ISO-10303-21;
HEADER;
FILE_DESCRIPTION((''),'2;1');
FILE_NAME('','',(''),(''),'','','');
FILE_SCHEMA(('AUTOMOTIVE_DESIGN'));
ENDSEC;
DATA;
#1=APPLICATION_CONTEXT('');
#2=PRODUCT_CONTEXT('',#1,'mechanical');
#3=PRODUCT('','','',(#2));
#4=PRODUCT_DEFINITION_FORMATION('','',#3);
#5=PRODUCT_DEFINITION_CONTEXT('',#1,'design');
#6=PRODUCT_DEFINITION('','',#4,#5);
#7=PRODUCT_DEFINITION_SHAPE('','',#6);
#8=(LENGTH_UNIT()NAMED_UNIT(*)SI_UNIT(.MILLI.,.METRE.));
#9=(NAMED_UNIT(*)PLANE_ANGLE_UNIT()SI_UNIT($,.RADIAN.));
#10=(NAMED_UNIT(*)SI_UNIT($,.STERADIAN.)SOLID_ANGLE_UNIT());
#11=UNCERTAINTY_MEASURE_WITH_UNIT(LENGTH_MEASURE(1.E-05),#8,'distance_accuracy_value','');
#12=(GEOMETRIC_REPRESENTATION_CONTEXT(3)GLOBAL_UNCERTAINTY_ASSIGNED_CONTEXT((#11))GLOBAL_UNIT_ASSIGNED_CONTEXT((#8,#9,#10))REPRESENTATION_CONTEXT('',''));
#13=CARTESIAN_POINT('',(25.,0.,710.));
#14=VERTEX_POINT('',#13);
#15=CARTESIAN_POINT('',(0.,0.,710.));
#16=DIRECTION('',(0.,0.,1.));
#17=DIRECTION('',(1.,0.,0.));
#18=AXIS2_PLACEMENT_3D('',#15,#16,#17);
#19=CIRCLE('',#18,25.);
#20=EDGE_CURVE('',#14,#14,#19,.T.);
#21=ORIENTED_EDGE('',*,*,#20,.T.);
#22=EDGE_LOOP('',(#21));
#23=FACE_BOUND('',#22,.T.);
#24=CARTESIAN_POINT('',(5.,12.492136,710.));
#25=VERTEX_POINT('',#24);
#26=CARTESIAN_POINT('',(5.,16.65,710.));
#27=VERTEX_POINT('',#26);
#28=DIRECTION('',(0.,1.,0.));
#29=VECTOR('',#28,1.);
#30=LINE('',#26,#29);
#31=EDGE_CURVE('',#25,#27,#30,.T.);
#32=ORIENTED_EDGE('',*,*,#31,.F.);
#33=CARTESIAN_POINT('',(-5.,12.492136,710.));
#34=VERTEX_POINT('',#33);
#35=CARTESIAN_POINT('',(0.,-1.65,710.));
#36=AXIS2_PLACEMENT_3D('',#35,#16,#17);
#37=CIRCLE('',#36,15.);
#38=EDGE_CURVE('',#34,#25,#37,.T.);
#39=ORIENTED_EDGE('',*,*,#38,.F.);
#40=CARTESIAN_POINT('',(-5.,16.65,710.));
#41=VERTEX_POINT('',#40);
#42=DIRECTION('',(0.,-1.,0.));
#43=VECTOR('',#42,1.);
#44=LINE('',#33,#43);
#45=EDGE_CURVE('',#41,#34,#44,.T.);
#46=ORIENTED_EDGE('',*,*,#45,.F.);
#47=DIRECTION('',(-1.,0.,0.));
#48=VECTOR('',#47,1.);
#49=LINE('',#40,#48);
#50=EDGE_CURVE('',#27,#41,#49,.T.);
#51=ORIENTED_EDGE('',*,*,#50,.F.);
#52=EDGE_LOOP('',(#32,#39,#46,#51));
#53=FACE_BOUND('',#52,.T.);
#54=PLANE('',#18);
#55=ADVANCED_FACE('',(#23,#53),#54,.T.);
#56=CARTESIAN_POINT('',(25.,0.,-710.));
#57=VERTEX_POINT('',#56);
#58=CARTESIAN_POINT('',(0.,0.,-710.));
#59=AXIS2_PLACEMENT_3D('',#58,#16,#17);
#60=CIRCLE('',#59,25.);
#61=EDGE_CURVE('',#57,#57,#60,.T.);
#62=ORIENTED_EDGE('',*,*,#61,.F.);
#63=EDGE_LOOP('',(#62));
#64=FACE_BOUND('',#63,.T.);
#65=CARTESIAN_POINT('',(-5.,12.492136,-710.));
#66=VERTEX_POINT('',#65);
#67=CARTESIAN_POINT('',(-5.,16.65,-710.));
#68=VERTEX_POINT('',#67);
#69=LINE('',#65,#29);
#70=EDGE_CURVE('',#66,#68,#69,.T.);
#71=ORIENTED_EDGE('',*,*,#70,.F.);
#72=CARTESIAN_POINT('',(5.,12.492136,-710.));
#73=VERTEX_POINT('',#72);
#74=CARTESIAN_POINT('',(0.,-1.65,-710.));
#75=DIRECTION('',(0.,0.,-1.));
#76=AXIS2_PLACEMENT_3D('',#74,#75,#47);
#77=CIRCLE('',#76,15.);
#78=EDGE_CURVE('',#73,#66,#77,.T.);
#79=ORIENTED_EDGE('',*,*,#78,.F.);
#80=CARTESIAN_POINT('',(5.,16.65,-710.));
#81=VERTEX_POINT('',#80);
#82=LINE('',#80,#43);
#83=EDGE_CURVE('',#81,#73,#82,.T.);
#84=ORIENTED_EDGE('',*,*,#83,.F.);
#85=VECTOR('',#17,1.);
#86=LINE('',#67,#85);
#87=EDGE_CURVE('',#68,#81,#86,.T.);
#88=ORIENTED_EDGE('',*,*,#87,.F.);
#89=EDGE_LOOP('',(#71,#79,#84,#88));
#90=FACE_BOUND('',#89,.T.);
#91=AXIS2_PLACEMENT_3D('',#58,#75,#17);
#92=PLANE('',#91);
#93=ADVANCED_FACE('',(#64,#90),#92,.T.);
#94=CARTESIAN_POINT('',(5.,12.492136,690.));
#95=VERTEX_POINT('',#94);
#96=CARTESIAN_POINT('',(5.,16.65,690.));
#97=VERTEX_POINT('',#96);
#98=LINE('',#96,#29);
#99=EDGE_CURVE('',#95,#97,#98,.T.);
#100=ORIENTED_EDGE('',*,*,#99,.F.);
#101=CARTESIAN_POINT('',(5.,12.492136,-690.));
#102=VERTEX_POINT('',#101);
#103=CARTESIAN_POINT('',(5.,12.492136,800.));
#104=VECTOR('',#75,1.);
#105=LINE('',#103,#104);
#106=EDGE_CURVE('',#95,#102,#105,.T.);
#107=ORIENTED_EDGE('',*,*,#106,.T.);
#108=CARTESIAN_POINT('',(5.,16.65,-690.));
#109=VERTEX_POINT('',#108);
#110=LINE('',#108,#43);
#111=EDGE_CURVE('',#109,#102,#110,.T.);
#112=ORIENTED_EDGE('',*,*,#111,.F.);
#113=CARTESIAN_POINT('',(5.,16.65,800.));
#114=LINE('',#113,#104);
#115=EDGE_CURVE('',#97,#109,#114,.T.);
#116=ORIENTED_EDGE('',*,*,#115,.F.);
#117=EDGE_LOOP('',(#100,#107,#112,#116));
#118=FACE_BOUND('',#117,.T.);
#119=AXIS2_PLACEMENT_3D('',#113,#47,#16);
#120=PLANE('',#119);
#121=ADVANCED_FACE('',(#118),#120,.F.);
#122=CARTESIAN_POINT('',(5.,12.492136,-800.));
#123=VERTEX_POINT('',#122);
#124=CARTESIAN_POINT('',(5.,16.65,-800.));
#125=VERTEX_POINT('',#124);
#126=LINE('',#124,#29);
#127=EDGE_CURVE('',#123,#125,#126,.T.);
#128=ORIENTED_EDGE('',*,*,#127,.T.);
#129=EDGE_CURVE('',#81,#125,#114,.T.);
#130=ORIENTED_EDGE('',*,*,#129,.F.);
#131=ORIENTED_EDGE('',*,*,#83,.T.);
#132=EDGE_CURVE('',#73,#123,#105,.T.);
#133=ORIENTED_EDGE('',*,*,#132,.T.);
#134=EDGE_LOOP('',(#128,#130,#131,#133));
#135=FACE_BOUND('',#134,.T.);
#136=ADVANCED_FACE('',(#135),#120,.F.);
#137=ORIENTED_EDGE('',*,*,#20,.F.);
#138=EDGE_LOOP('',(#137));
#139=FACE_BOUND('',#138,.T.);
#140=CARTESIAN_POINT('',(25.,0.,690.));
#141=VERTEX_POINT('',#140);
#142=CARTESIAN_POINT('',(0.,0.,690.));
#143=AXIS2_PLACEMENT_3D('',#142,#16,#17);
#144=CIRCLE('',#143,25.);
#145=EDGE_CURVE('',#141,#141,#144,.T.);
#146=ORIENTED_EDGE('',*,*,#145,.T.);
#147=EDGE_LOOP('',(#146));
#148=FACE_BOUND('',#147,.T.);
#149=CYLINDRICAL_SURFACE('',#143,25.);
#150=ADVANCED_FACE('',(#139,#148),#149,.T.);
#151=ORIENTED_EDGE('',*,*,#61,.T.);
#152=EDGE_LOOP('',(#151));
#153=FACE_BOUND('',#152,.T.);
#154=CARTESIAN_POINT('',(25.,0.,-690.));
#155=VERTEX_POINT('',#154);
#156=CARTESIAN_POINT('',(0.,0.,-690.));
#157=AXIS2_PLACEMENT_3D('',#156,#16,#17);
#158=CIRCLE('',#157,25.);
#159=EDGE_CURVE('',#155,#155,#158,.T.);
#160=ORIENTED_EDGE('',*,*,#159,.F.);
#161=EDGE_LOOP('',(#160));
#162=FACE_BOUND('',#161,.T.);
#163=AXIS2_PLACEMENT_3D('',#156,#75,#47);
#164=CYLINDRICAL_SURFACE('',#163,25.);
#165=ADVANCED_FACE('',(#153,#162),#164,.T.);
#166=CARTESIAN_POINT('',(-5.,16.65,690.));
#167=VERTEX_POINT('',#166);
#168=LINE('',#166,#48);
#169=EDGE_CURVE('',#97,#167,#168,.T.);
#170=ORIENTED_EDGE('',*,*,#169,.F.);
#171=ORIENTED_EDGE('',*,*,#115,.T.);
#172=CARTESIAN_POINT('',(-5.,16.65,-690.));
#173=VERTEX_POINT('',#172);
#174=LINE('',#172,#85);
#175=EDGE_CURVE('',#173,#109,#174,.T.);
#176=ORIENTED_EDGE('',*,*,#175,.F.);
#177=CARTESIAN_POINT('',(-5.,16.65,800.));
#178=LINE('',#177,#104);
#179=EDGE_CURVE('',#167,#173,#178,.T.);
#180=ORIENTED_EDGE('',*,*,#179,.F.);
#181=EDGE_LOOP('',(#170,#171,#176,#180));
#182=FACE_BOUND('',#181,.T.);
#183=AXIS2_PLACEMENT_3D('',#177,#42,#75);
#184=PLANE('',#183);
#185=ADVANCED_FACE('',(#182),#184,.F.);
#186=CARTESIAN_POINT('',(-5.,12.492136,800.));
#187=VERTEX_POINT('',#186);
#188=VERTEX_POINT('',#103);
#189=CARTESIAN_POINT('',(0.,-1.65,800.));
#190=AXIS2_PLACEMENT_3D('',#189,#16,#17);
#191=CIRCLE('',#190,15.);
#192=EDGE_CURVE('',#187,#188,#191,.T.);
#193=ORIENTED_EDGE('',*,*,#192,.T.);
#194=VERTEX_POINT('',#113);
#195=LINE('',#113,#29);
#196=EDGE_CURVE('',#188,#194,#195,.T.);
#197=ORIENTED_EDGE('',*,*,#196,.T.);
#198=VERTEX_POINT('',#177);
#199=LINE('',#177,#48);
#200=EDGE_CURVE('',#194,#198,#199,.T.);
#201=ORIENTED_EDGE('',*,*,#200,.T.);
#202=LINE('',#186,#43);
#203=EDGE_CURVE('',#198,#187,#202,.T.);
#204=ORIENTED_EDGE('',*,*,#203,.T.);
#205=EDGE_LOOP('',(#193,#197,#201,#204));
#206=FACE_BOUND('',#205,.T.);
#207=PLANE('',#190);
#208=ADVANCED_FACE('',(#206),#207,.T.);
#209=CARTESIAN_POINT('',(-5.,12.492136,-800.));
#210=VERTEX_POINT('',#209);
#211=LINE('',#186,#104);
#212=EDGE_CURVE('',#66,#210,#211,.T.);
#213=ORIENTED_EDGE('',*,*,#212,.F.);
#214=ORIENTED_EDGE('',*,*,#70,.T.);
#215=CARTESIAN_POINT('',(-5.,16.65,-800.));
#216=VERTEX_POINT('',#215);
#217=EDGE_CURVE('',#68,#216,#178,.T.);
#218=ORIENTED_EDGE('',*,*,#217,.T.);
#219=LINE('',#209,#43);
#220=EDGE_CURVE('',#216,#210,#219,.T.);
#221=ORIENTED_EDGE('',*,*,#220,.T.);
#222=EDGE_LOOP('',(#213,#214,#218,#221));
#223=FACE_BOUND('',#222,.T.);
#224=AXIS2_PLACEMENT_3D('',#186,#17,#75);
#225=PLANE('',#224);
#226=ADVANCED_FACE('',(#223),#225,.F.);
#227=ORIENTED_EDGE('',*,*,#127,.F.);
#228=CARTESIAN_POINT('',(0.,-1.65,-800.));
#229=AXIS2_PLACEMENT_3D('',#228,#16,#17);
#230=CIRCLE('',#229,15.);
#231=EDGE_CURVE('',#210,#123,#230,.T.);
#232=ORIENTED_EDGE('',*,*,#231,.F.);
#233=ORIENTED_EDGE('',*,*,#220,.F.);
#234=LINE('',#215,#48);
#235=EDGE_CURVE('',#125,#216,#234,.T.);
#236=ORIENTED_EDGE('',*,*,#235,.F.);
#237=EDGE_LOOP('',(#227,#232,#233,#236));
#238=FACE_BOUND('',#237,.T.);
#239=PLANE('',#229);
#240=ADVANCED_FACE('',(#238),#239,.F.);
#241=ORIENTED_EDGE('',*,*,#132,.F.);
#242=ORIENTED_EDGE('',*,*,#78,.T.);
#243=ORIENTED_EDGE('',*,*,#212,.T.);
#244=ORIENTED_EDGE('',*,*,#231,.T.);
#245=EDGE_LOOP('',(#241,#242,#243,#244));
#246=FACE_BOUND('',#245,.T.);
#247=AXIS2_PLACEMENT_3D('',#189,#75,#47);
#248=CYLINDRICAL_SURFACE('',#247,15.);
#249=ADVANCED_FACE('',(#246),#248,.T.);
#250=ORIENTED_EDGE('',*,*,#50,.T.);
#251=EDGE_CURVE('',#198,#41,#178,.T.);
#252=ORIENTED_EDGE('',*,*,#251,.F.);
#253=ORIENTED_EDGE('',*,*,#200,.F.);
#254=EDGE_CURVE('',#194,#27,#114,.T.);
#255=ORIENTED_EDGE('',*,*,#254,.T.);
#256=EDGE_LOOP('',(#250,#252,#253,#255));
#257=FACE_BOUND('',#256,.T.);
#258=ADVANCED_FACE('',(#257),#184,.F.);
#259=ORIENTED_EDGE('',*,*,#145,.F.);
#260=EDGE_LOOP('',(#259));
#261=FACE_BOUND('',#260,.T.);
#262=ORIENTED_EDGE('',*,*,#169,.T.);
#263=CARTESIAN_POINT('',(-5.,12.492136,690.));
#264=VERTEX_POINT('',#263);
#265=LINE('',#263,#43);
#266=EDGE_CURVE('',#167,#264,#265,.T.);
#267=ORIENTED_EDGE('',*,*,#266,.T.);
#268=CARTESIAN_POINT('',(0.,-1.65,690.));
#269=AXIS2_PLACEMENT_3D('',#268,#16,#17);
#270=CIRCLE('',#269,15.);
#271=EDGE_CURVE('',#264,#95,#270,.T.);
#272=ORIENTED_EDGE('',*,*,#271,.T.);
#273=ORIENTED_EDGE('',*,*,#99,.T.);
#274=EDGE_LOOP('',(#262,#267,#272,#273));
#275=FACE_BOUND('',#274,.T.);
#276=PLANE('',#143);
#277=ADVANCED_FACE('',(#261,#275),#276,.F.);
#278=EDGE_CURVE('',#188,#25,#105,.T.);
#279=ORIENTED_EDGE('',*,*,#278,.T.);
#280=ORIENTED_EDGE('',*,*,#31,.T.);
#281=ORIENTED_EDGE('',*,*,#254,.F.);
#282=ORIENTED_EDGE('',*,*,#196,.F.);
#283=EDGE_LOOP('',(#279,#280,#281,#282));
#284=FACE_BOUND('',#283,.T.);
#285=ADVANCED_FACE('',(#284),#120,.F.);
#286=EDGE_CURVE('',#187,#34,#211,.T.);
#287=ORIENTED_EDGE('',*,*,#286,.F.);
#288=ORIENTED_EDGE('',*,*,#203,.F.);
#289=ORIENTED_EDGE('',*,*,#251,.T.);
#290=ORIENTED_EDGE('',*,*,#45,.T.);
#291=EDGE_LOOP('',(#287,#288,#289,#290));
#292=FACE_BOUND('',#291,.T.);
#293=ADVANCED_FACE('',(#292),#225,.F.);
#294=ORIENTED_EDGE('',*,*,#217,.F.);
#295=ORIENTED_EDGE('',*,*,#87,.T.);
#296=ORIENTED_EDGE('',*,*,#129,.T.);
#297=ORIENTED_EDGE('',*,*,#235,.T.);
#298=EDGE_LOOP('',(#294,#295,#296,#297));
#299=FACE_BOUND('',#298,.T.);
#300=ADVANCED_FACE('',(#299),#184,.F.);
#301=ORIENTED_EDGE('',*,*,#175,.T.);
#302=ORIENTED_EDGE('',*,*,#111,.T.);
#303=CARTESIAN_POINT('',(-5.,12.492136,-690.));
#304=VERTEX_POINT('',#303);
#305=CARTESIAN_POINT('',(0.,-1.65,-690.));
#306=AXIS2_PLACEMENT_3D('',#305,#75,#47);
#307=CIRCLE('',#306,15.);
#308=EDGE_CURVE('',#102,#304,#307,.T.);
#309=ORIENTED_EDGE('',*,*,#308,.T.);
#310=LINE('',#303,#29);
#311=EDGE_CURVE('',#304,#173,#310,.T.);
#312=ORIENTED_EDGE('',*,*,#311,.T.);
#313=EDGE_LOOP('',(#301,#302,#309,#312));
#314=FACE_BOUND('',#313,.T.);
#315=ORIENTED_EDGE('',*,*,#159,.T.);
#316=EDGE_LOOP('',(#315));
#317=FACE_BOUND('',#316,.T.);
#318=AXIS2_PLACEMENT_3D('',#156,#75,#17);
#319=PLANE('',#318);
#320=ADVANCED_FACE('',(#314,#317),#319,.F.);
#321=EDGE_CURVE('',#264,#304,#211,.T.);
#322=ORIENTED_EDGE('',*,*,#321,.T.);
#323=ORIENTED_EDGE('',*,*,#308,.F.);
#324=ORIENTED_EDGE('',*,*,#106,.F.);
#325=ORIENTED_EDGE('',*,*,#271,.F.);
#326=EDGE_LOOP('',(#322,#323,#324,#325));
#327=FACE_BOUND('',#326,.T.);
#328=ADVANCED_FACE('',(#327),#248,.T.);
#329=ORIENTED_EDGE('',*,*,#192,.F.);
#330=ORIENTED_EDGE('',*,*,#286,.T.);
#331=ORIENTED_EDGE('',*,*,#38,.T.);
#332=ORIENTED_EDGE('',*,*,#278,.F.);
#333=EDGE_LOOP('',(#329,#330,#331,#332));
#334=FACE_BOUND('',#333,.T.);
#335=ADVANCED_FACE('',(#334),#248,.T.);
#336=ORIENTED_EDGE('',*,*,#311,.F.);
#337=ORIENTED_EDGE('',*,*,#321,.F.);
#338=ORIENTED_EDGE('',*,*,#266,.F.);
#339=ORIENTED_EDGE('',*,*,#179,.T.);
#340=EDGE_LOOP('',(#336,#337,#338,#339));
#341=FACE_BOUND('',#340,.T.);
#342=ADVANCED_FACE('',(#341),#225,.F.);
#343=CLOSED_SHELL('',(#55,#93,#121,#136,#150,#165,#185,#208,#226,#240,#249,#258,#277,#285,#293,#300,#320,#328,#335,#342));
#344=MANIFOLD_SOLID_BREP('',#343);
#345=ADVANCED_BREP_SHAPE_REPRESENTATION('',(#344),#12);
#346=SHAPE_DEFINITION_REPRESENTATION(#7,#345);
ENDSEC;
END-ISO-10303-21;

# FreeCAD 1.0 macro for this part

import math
import FreeCAD as App
import Part
import Sketcher

doc = App.newDocument("Part")
params = doc.addObject("Spreadsheet::Sheet", "Params")
for row, (alias, value) in enumerate([
    ("sketch1_radius", "15 mm"),
    ("sketch1_width", "10 mm"),
    ("pad1_length", "1600 mm"),
    ("sketch2_diameter", "50 mm"),
    ("pad2_length", "20 mm"),
], start=1):
    params.set(f"A{row}", alias)
    params.set(f"B{row}", "=" + value)
    params.setAlias(f"B{row}", alias)

body = doc.addObject("PartDesign::Body", "Body")

sketch1 = body.newObject("Sketcher::SketchObject", "Sketch")
sketch1.AttachmentSupport = (doc.getObject("XY_Plane"), [""])
sketch1.MapMode = "FlatFace"
sketch1.addGeometry(Part.LineSegment(App.Vector(-5, 16.6, 0), App.Vector(-5, 12.5, 0)), False)
sketch1.addGeometry(Part.ArcOfCircle(Part.Circle(App.Vector(0, -1.6, 0), App.Vector(0, 0, 1), 15), math.radians(109), math.radians(431)), False)
sketch1.addGeometry(Part.LineSegment(App.Vector(5, 12.5, 0), App.Vector(5, 16.6, 0)), False)
sketch1.addGeometry(Part.LineSegment(App.Vector(5, 16.6, 0), App.Vector(-5, 16.6, 0)), False)
sketch1.addConstraint(Sketcher.Constraint("Coincident", 0, 2, 1, 1))
sketch1.addConstraint(Sketcher.Constraint("Coincident", 1, 2, 2, 1))
sketch1.addConstraint(Sketcher.Constraint("Coincident", 2, 2, 3, 1))
sketch1.addConstraint(Sketcher.Constraint("Coincident", 3, 2, 0, 1))
sketch1.addConstraint(Sketcher.Constraint("Vertical", 0))
sketch1.addConstraint(Sketcher.Constraint("Vertical", 2))
sketch1.addConstraint(Sketcher.Constraint("Horizontal", 3))
sketch1.addConstraint(Sketcher.Constraint("Symmetric", 0, 2, 1, 2, -2))
sketch1.addConstraint(Sketcher.Constraint("Radius", 1, 15.0))
sketch1.addConstraint(Sketcher.Constraint("DistanceX", 3, 2, 3, 1, 10.0))
sketch1.addConstraint(Sketcher.Constraint("DistanceY", 1, 3, 2, 2, 18.3))
sketch1.addConstraint(Sketcher.Constraint("DistanceY", 1, 3, -1, 1, 1.65))
sketch1.setExpression("Constraints[8]", "Params.sketch1_radius")
sketch1.setExpression("Constraints[9]", "Params.sketch1_width")
pad1 = body.newObject("PartDesign::Pad", "Pad")
pad1.Profile = sketch1
pad1.setExpression("Length", "Params.pad1_length")
pad1.Midplane = True

sketch2 = body.newObject("Sketcher::SketchObject", "Sketch001")
sketch2.AttachmentSupport = (doc.getObject("XY_Plane"), [""])
sketch2.MapMode = "FlatFace"
sketch2.AttachmentOffset = App.Placement(App.Vector(0, 0, 710), App.Rotation())
sketch2.addGeometry(Part.Circle(App.Vector(0, 0, 0), App.Vector(0, 0, 1), 25), False)
sketch2.addConstraint(Sketcher.Constraint("Coincident", 0, 3, -1, 1))
sketch2.addConstraint(Sketcher.Constraint("Diameter", 0, 50.0))
sketch2.setExpression("Constraints[1]", "Params.sketch2_diameter")
pad2 = body.newObject("PartDesign::Pad", "Pad001")
pad2.Profile = sketch2
pad2.setExpression("Length", "Params.pad2_length")
pad2.Reversed = True
doc.recompute()

mirrored = body.newObject("PartDesign::Mirrored", "Mirrored")
mirrored.Originals = [pad2]
mirrored.MirrorPlane = (doc.getObject("XY_Plane"), [""])
body.Tip = mirrored

doc.recompute()
